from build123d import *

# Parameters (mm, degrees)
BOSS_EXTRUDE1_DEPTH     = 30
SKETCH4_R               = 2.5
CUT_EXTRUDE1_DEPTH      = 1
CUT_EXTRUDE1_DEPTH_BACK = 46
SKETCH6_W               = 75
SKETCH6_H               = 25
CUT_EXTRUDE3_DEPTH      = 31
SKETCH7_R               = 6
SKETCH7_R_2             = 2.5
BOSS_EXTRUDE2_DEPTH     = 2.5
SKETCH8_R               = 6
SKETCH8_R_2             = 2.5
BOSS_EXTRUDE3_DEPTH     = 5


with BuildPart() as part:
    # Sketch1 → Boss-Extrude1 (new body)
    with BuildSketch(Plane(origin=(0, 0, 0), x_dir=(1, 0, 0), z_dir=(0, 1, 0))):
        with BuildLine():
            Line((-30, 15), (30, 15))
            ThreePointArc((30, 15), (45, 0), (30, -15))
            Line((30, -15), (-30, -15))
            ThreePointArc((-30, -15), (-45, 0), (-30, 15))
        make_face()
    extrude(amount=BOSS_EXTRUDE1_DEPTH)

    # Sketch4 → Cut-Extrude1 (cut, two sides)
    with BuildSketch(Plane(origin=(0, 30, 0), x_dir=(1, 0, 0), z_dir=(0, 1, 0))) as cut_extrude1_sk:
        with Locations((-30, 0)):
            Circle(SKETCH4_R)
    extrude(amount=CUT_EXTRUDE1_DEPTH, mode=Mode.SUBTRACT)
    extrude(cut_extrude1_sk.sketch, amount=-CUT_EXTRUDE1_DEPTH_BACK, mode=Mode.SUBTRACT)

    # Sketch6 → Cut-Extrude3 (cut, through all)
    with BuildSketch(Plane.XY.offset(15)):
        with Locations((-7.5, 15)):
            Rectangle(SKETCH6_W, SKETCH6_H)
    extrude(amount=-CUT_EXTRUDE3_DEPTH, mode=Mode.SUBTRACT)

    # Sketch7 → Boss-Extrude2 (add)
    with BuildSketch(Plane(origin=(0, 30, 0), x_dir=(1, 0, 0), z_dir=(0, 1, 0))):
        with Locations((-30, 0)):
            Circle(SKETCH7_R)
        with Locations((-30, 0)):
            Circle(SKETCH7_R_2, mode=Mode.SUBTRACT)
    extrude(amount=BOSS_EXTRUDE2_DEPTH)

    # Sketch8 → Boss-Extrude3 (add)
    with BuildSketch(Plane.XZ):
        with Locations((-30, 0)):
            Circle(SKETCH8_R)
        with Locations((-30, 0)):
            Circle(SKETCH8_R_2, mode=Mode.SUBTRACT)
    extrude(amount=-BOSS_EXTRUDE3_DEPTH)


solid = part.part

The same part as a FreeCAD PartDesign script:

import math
import FreeCAD as App
import Part
import Sketcher

V = App.Vector


def add_polygon(sketch, points):
    """Adds a closed chain of lines whose ends are joined by coincident constraints."""
    first, n = sketch.GeometryCount, len(points)
    for a, b in zip(points, points[1:] + points[:1]):
        sketch.addGeometry(Part.LineSegment(App.Vector(*a, 0), App.Vector(*b, 0)), False)
    for i in range(n):
        sketch.addConstraint(Sketcher.Constraint("Coincident", first + i, 2, first + (i + 1) % n, 1))

doc = App.newDocument("Part")
params = doc.addObject("Spreadsheet::Sheet", "Params")
for row, (alias, value) in enumerate([
    ("sketch1_radius", "15 mm"),
    ("sketch1_width", "60 mm"),
    ("pad1_length", "30 mm"),
    ("sketch2_diameter", "5 mm"),
    ("sketch3_width", "75 mm"),
    ("sketch3_height", "25 mm"),
    ("sketch4_diameter", "12 mm"),
    ("sketch4_diameter2", "5 mm"),
    ("pad2_length", "2.5 mm"),
    ("sketch5_diameter", "12 mm"),
    ("sketch5_diameter2", "5 mm"),
    ("pad3_length", "5 mm"),
], start=1):
    params.set(f"A{row}", alias)
    params.set(f"B{row}", "=" + value)
    params.setAlias(f"B{row}", alias)

body = doc.addObject("PartDesign::Body", "Body")

sketch1 = body.newObject("Sketcher::SketchObject", "Sketch")
sketch1.AttachmentSupport = (doc.getObject("XZ_Plane"), [""])
sketch1.MapMode = "FlatFace"
sketch1.addGeometry(Part.LineSegment(V(30, -15, 0), V(-30, -15, 0)), False)
sketch1.addGeometry(Part.ArcOfCircle(Part.Circle(V(-30, 0, 0), V(0, 0, 1), 15), math.radians(90), math.radians(270)), False)
sketch1.addGeometry(Part.LineSegment(V(-30, 15, 0), V(30, 15, 0)), False)
sketch1.addGeometry(Part.ArcOfCircle(Part.Circle(V(30, 0, 0), V(0, 0, 1), 15), math.radians(-90), math.radians(90)), False)
sketch1.addConstraint(Sketcher.Constraint("Tangent", 0, 2, 1, 2))
sketch1.addConstraint(Sketcher.Constraint("Tangent", 1, 1, 2, 1))
sketch1.addConstraint(Sketcher.Constraint("Tangent", 2, 2, 3, 2))
sketch1.addConstraint(Sketcher.Constraint("Tangent", 3, 1, 0, 1))
sketch1.addConstraint(Sketcher.Constraint("Horizontal", 0))
sketch1.addConstraint(Sketcher.Constraint("Horizontal", 2))
sketch1.addConstraint(Sketcher.Constraint("Symmetric", 1, 3, 3, 3, -1, 1))
sketch1.addConstraint(Sketcher.Constraint("Radius", 1, 15.0))
sketch1.addConstraint(Sketcher.Constraint("DistanceX", 0, 2, 0, 1, 60.0))
sketch1.setExpression("Constraints[7]", "Params.sketch1_radius")
sketch1.setExpression("Constraints[8]", "Params.sketch1_width")
pad1 = body.newObject("PartDesign::Pad", "Pad")
pad1.Profile = sketch1
pad1.setExpression("Length", "Params.pad1_length")
pad1.Reversed = True

sketch2 = body.newObject("Sketcher::SketchObject", "Sketch001")
sketch2.AttachmentSupport = (doc.getObject("XZ_Plane"), [""])
sketch2.MapMode = "FlatFace"
sketch2.AttachmentOffset = App.Placement(V(0, 0, -30), App.Rotation())
sketch2.addGeometry(Part.Circle(V(-30, 0, 0), V(0, 0, 1), 2.5), False)
sketch2.addConstraint(Sketcher.Constraint("PointOnObject", 0, 3, -1))
sketch2.addConstraint(Sketcher.Constraint("Diameter", 0, 5.0))
sketch2.addConstraint(Sketcher.Constraint("DistanceX", 0, 3, -1, 1, 30.0))
sketch2.setExpression("Constraints[1]", "Params.sketch2_diameter")
pocket1 = body.newObject("PartDesign::Pocket", "Pocket")
pocket1.Profile = sketch2
pocket1.Type = "ThroughAll"
pocket1.Midplane = True

sketch3 = body.newObject("Sketcher::SketchObject", "Sketch002")
sketch3.AttachmentSupport = (doc.getObject("XY_Plane"), [""])
sketch3.MapMode = "FlatFace"
sketch3.AttachmentOffset = App.Placement(V(0, 0, 15), App.Rotation())
add_polygon(sketch3, [(-45, 28), (-45, 2), (30, 2), (30, 28)])
sketch3.addConstraint(Sketcher.Constraint("Vertical", 0))
sketch3.addConstraint(Sketcher.Constraint("Horizontal", 1))
sketch3.addConstraint(Sketcher.Constraint("Vertical", 2))
sketch3.addConstraint(Sketcher.Constraint("Horizontal", 3))
sketch3.addConstraint(Sketcher.Constraint("DistanceX", 1, 1, 1, 2, 75.0))
sketch3.addConstraint(Sketcher.Constraint("DistanceY", 0, 2, 0, 1, 25.0))
sketch3.addConstraint(Sketcher.Constraint("DistanceX", 0, 2, -1, 1, 45.0))
sketch3.addConstraint(Sketcher.Constraint("DistanceY", -1, 1, 0, 2, 2.5))
sketch3.setExpression("Constraints[8]", "Params.sketch3_width")
sketch3.setExpression("Constraints[9]", "Params.sketch3_height")
pocket2 = body.newObject("PartDesign::Pocket", "Pocket001")
pocket2.Profile = sketch3
pocket2.Type = "ThroughAll"

sketch4 = body.newObject("Sketcher::SketchObject", "Sketch003")
sketch4.AttachmentSupport = (doc.getObject("XZ_Plane"), [""])
sketch4.MapMode = "FlatFace"
sketch4.AttachmentOffset = App.Placement(V(0, 0, -30), App.Rotation())
sketch4.addGeometry(Part.Circle(V(-30, 0, 0), V(0, 0, 1), 6), False)
sketch4.addGeometry(Part.Circle(V(-30, 0, 0), V(0, 0, 1), 2.5), False)
sketch4.addConstraint(Sketcher.Constraint("Coincident", 1, 3, 0, 3))
sketch4.addConstraint(Sketcher.Constraint("PointOnObject", 0, 3, -1))
sketch4.addConstraint(Sketcher.Constraint("Diameter", 0, 12.0))
sketch4.addConstraint(Sketcher.Constraint("Diameter", 1, 5.0))
sketch4.addConstraint(Sketcher.Constraint("DistanceX", 0, 3, -1, 1, 30.0))
sketch4.setExpression("Constraints[2]", "Params.sketch4_diameter")
sketch4.setExpression("Constraints[3]", "Params.sketch4_diameter2")
pad2 = body.newObject("PartDesign::Pad", "Pad001")
pad2.Profile = sketch4
pad2.setExpression("Length", "Params.pad2_length")
pad2.Reversed = True

sketch5 = body.newObject("Sketcher::SketchObject", "Sketch004")
sketch5.AttachmentSupport = (doc.getObject("XZ_Plane"), [""])
sketch5.MapMode = "FlatFace"
sketch5.addGeometry(Part.Circle(V(-30, 0, 0), V(0, 0, 1), 6), False)
sketch5.addGeometry(Part.Circle(V(-30, 0, 0), V(0, 0, 1), 2.5), False)
sketch5.addConstraint(Sketcher.Constraint("Coincident", 1, 3, 0, 3))
sketch5.addConstraint(Sketcher.Constraint("PointOnObject", 0, 3, -1))
sketch5.addConstraint(Sketcher.Constraint("Diameter", 0, 12.0))
sketch5.addConstraint(Sketcher.Constraint("Diameter", 1, 5.0))
sketch5.addConstraint(Sketcher.Constraint("DistanceX", 0, 3, -1, 1, 30.0))
sketch5.setExpression("Constraints[2]", "Params.sketch5_diameter")
sketch5.setExpression("Constraints[3]", "Params.sketch5_diameter2")
pad3 = body.newObject("PartDesign::Pad", "Pad002")
pad3.Profile = sketch5
pad3.setExpression("Length", "Params.pad3_length")
pad3.Reversed = True

doc.recompute()
